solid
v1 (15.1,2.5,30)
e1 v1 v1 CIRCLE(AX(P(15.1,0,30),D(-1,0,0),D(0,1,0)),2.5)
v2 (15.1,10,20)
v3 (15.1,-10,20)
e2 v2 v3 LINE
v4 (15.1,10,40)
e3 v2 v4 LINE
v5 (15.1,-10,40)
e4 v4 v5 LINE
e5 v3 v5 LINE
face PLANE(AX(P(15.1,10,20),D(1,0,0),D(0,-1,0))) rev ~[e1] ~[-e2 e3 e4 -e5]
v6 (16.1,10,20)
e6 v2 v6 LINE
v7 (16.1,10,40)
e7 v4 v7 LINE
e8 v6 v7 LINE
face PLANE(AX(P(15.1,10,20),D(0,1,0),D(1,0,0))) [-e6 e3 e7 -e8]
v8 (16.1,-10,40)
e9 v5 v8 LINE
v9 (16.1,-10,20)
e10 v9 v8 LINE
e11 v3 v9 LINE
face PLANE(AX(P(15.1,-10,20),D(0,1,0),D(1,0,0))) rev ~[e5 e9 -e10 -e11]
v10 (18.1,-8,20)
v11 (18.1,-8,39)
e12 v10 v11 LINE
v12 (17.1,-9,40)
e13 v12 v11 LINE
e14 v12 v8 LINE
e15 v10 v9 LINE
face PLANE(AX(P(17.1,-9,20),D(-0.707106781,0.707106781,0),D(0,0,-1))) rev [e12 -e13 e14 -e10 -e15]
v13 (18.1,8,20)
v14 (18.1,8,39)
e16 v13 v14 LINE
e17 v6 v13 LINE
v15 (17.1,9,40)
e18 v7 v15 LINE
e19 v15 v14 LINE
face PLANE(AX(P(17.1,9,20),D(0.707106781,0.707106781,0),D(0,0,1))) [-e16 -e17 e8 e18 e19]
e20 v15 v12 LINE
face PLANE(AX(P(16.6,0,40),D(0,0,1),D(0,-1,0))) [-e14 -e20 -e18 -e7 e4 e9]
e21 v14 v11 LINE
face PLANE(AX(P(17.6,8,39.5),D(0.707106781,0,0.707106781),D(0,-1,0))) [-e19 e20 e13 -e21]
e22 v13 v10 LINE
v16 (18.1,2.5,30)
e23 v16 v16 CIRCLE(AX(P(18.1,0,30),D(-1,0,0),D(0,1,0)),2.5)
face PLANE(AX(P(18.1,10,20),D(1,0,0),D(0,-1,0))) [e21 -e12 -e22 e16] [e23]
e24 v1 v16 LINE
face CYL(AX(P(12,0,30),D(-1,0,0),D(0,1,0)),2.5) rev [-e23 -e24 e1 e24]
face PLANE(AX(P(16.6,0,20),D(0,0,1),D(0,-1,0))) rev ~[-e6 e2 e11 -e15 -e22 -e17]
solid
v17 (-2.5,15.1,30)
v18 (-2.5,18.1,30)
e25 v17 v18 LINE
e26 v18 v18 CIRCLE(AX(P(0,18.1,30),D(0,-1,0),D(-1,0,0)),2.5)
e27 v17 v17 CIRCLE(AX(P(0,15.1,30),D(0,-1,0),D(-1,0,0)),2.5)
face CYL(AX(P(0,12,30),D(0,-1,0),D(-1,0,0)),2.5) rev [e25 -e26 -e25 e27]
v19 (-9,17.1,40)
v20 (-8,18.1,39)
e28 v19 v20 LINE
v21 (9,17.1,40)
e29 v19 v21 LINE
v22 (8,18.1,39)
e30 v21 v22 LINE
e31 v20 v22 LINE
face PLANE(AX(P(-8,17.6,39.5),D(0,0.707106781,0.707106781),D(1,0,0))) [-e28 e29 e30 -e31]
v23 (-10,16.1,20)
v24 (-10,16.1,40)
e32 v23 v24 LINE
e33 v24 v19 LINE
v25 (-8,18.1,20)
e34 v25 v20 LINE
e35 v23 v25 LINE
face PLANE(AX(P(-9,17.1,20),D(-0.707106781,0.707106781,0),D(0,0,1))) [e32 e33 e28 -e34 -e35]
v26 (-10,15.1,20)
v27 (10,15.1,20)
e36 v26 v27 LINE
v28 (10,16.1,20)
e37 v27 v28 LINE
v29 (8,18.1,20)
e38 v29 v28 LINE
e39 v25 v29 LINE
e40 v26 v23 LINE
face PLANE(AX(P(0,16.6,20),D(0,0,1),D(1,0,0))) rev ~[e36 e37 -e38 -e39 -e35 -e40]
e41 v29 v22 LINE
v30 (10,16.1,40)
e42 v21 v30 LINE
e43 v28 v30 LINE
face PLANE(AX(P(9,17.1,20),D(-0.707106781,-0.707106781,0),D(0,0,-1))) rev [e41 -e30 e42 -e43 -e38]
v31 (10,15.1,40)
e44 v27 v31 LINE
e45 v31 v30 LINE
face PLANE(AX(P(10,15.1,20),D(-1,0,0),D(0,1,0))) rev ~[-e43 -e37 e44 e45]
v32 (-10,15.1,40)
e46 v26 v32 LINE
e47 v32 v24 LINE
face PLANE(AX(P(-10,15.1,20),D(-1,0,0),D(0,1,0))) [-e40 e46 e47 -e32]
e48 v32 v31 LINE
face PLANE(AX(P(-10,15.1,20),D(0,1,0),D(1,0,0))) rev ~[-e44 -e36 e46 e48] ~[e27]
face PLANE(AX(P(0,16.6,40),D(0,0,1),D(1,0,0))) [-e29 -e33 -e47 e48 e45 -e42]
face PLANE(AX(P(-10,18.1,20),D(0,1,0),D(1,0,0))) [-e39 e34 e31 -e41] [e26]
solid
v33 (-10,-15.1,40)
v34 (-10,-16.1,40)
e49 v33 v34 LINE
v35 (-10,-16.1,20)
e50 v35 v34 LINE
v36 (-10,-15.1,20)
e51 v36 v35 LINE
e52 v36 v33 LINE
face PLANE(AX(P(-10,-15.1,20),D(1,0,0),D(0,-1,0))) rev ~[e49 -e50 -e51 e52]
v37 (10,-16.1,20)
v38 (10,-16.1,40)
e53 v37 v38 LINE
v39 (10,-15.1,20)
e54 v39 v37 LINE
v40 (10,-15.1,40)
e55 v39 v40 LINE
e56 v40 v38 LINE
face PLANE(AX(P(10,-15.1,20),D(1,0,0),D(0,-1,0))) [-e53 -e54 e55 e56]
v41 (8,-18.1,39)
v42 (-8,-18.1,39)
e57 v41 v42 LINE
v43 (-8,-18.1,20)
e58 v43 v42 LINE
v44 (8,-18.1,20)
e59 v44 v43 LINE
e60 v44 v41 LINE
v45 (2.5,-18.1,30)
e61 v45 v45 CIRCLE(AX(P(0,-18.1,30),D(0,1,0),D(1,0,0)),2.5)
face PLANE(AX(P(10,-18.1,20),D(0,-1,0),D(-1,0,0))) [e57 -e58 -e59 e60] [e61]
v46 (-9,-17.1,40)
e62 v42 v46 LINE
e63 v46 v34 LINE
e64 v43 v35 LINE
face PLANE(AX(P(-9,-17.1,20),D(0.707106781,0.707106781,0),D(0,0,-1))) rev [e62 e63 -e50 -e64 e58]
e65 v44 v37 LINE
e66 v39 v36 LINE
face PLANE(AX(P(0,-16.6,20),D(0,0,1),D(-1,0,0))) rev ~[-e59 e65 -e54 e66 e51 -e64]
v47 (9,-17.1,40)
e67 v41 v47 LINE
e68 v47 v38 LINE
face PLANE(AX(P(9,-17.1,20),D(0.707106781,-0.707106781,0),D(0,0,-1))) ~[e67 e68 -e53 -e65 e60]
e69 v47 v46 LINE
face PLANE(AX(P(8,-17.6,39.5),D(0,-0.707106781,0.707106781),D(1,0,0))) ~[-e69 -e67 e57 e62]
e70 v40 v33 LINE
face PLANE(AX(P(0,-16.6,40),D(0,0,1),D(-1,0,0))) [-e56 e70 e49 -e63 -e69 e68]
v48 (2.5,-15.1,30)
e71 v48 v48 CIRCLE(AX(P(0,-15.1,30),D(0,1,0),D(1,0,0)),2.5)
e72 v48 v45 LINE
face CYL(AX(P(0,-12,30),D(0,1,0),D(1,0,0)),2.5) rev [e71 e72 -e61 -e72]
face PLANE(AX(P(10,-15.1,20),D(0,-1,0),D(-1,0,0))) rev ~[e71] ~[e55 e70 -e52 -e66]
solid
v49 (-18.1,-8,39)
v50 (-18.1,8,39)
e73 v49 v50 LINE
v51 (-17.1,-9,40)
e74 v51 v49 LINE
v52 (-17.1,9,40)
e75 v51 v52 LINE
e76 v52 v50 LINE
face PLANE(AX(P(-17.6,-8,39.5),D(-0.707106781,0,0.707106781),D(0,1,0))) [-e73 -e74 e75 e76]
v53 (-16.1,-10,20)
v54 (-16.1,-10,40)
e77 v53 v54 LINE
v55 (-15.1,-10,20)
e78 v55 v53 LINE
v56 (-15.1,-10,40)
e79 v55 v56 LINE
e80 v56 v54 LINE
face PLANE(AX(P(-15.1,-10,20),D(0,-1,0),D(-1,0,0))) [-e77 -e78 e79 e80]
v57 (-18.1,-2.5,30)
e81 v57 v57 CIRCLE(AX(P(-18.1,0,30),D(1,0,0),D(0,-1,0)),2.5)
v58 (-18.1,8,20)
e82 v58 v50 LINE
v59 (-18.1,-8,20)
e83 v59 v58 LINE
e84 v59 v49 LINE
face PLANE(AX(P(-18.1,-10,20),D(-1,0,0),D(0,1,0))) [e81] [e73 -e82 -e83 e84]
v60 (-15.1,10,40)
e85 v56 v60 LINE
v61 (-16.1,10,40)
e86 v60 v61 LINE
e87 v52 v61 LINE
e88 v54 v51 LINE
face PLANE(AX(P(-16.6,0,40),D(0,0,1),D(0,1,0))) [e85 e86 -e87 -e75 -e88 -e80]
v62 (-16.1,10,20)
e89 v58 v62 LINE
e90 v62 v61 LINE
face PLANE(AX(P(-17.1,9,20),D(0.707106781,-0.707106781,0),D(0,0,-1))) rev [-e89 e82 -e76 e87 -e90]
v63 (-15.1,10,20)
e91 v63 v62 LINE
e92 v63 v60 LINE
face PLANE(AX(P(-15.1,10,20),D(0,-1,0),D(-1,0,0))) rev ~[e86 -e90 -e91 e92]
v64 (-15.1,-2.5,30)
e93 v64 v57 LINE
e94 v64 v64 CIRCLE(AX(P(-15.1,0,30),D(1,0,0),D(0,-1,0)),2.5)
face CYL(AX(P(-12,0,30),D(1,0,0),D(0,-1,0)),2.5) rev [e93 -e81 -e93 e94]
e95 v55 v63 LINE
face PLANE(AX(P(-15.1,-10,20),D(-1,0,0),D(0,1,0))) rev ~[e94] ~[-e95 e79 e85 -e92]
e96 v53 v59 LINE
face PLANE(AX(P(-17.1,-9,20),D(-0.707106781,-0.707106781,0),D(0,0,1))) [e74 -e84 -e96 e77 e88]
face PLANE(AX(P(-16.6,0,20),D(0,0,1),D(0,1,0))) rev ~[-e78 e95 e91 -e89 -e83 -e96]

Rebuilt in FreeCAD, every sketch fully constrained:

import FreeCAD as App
import Part
import Sketcher
Q = App.Units.Quantity


def edges_at(feature, points):
    """Names of the edges that pass closest to the given points."""
    edges = feature.Shape.Edges
    near = lambda p: min(range(len(edges)), key=lambda i: edges[i].distToShape(Part.Vertex(*p))[0])
    return sorted({f"Edge{near(p) + 1}" for p in points})


def add_polygon(sketch, points):
    """Adds a closed chain of lines whose ends are joined by coincident constraints."""
    first, n = sketch.GeometryCount, len(points)
    for a, b in zip(points, points[1:] + points[:1]):
        sketch.addGeometry(Part.LineSegment(App.Vector(*a, 0), App.Vector(*b, 0)), False)
    for i in range(n):
        sketch.addConstraint(Sketcher.Constraint("Coincident", first + i, 2, first + (i + 1) % n, 1))

doc = App.newDocument("Part")
body = doc.addObject("PartDesign::Body", "Body")

# Sketch on YZ plane
sketch1 = doc.addObject("Sketcher::SketchObject", "Sketch")
body.addObject(sketch1)
sketch1.AttachmentSupport = (doc.YZ_Plane, [""])
sketch1.MapMode = "FlatFace"
sketch1.AttachmentOffset = App.Placement(App.Vector(0, 0, 12), App.Rotation())
sketch1.addGeometry(Part.Circle(App.Vector(0, 30, 0), App.Vector(0, 0, 1), 2.5), False)
sketch1.addConstraint([
    Sketcher.Constraint("PointOnObject", 0, 3, -2),
    Sketcher.Constraint("Diameter", 0, Q("5 mm")),
    Sketcher.Constraint("DistanceY", -1, 1, 0, 3, Q("30 mm")),
])
pad1 = doc.addObject("PartDesign::Pad", "Pad")
body.addObject(pad1)
pad1.Profile = sketch1
pad1.Length = 10
body2 = doc.addObject("PartDesign::Body", "Body001")

# Sketch on XY plane
sketch2 = doc.addObject("Sketcher::SketchObject", "Sketch001")
body2.addObject(sketch2)
sketch2.AttachmentSupport = (doc.getObject("XY_Plane001"), [""])
sketch2.MapMode = "FlatFace"
sketch2.addGeometry(Part.Circle(App.Vector(0, 0, 0), App.Vector(0, 0, 1), 2.5), False)
sketch2.addConstraint([
    Sketcher.Constraint("Coincident", 0, 3, -1, 1),
    Sketcher.Constraint("Diameter", 0, Q("5 mm")),
])
pad2 = doc.addObject("PartDesign::Pad", "Pad001")
body2.addObject(pad2)
pad2.Profile = sketch2
pad2.Length = 10
body3 = doc.addObject("PartDesign::Body", "Body002")
doc.recompute()

body2.Placement = App.Placement(App.Vector(0, 0, 0), App.Rotation(App.Vector(1, 0, 0), 90))
boolean = doc.addObject("PartDesign::Boolean", "Boolean")
body3.addObject(boolean)
boolean.Type = "Fuse"
boolean.addObjects([body2])
body4 = doc.addObject("PartDesign::Body", "Body003")
doc.recompute()

body3.Placement = App.Placement(App.Vector(0, 12, 30), App.Rotation(App.Vector(0, 0, 1), 180))
boolean2 = doc.addObject("PartDesign::Boolean", "Boolean001")
body4.addObject(boolean2)
boolean2.Type = "Fuse"
boolean2.addObjects([body3])
body5 = doc.addObject("PartDesign::Body", "Body004")

# Sketch on XY plane
sketch3 = doc.addObject("Sketcher::SketchObject", "Sketch002")
body5.addObject(sketch3)
sketch3.AttachmentSupport = (doc.getObject("XY_Plane004"), [""])
sketch3.MapMode = "FlatFace"
sketch3.addGeometry(Part.Circle(App.Vector(0, 0, 0), App.Vector(0, 0, 1), 2.5), False)
sketch3.addConstraint([
    Sketcher.Constraint("Coincident", 0, 3, -1, 1),
    Sketcher.Constraint("Diameter", 0, Q("5 mm")),
])
pad3 = doc.addObject("PartDesign::Pad", "Pad002")
body5.addObject(pad3)
pad3.Profile = sketch3
pad3.Length = 10
body6 = doc.addObject("PartDesign::Body", "Body005")
doc.recompute()

body5.Placement = App.Placement(App.Vector(0, 0, 0), App.Rotation(App.Vector(1, 0, 0), 90))
boolean3 = doc.addObject("PartDesign::Boolean", "Boolean002")
body6.addObject(boolean3)
boolean3.Type = "Fuse"
boolean3.addObjects([body5])
body7 = doc.addObject("PartDesign::Body", "Body006")
doc.recompute()

body6.Placement = App.Placement(App.Vector(0, 0, 0), App.Rotation(App.Vector(0, 0, 1), 0))
boolean4 = doc.addObject("PartDesign::Boolean", "Boolean003")
body7.addObject(boolean4)
boolean4.Type = "Fuse"
boolean4.addObjects([body6])
body8 = doc.addObject("PartDesign::Body", "Body007")
doc.recompute()

body7.Placement = App.Placement(App.Vector(-12, 0, 30), App.Rotation(App.Vector(0, 0, 1), 270))
boolean5 = doc.addObject("PartDesign::Boolean", "Boolean004")
body8.addObject(boolean5)
boolean5.Type = "Fuse"
boolean5.addObjects([body7])
body9 = doc.addObject("PartDesign::Body", "Body008")
body9.AllowCompound = True

# Sketch on XZ plane
sketch4 = doc.addObject("Sketcher::SketchObject", "Sketch003")
body9.addObject(sketch4)
sketch4.AttachmentSupport = (doc.getObject("XZ_Plane008"), [""])
sketch4.MapMode = "FlatFace"
sketch4.AttachmentOffset = App.Placement(App.Vector(0, 0, 12), App.Rotation())
sketch4.addGeometry(Part.Circle(App.Vector(0, 30, 0), App.Vector(0, 0, 1), 2.5), False)
sketch4.addConstraint([
    Sketcher.Constraint("PointOnObject", 0, 3, -2),
    Sketcher.Constraint("Diameter", 0, Q("5 mm")),
    Sketcher.Constraint("DistanceY", -1, 1, 0, 3, Q("30 mm")),
])
pad4 = doc.addObject("PartDesign::Pad", "Pad003")
body9.addObject(pad4)
pad4.Profile = sketch4
pad4.Length = 10
doc.recompute()

boolean6 = doc.addObject("PartDesign::Boolean", "Boolean005")
body9.addObject(boolean6)
boolean6.Type = "Fuse"
boolean6.addObjects([body])
doc.recompute()

boolean7 = doc.addObject("PartDesign::Boolean", "Boolean006")
body9.addObject(boolean7)
boolean7.Type = "Fuse"
boolean7.addObjects([body4])
doc.recompute()

boolean8 = doc.addObject("PartDesign::Boolean", "Boolean007")
body9.addObject(boolean8)
boolean8.Type = "Fuse"
boolean8.addObjects([body8])
body10 = doc.addObject("PartDesign::Body", "Body009")

# Sketch on XY plane
sketch5 = doc.addObject("Sketcher::SketchObject", "Sketch004")
body10.addObject(sketch5)
sketch5.AttachmentSupport = (doc.getObject("XY_Plane009"), [""])
sketch5.MapMode = "FlatFace"
sketch5.AttachmentOffset = App.Placement(App.Vector(0, 0, 20), App.Rotation())
add_polygon(sketch5, [(-18.1, -10), (-15.1, -10), (-15.1, 10), (-18.1, 10)])  # lines 0-3
sketch5.addConstraint([
    Sketcher.Constraint("Horizontal", 0),
    Sketcher.Constraint("Vertical", 1),
    Sketcher.Constraint("Horizontal", 2),
    Sketcher.Constraint("Vertical", 3),
    Sketcher.Constraint("DistanceX", 0, 1, 0, 2, Q("3 mm")),
    Sketcher.Constraint("DistanceY", 1, 1, 1, 2, Q("20 mm")),
    Sketcher.Constraint("DistanceY", 0, 2, -1, 1, Q("10 mm")),
    Sketcher.Constraint("DistanceX", 0, 2, -1, 1, Q("15.1 mm")),
])
pad5 = doc.addObject("PartDesign::Pad", "Pad004")
body10.addObject(pad5)
pad5.Profile = sketch5
pad5.Length = 20
body11 = doc.addObject("PartDesign::Body", "Body010")

# Sketch on XY plane
sketch6 = doc.addObject("Sketcher::SketchObject", "Sketch005")
body11.addObject(sketch6)
sketch6.AttachmentSupport = (doc.getObject("XY_Plane010"), [""])
sketch6.MapMode = "FlatFace"
sketch6.AttachmentOffset = App.Placement(App.Vector(0, 0, 20), App.Rotation())
add_polygon(sketch6, [(10, -18.1), (10, -15.1), (-10, -15.1), (-10, -18.1)])  # lines 0-3
sketch6.addConstraint([
    Sketcher.Constraint("Vertical", 0),
    Sketcher.Constraint("Horizontal", 1),
    Sketcher.Constraint("Vertical", 2),
    Sketcher.Constraint("Horizontal", 3),
    Sketcher.Constraint("DistanceX", 1, 2, 1, 1, Q("20 mm")),
    Sketcher.Constraint("DistanceY", 0, 1, 0, 2, Q("3 mm")),
    Sketcher.Constraint("DistanceX", -1, 1, 0, 2, Q("10 mm")),
    Sketcher.Constraint("DistanceY", 0, 2, -1, 1, Q("15.1 mm")),
])
pad6 = doc.addObject("PartDesign::Pad", "Pad005")
body11.addObject(pad6)
pad6.Profile = sketch6
pad6.Length = 20
body12 = doc.addObject("PartDesign::Body", "Body011")

# Sketch on XY plane
sketch7 = doc.addObject("Sketcher::SketchObject", "Sketch006")
body12.addObject(sketch7)
sketch7.AttachmentSupport = (doc.getObject("XY_Plane011"), [""])
sketch7.MapMode = "FlatFace"
sketch7.AttachmentOffset = App.Placement(App.Vector(0, 0, 20), App.Rotation())
add_polygon(sketch7, [(18.1, 10), (15.1, 10), (15.1, -10), (18.1, -10)])  # lines 0-3
sketch7.addConstraint([
    Sketcher.Constraint("Horizontal", 0),
    Sketcher.Constraint("Vertical", 1),
    Sketcher.Constraint("Horizontal", 2),
    Sketcher.Constraint("Vertical", 3),
    Sketcher.Constraint("DistanceX", 0, 2, 0, 1, Q("3 mm")),
    Sketcher.Constraint("DistanceY", 1, 2, 1, 1, Q("20 mm")),
    Sketcher.Constraint("DistanceY", -1, 1, 0, 2, Q("10 mm")),
    Sketcher.Constraint("DistanceX", -1, 1, 0, 2, Q("15.1 mm")),
])
pad7 = doc.addObject("PartDesign::Pad", "Pad006")
body12.addObject(pad7)
pad7.Profile = sketch7
pad7.Length = 20
body13 = doc.addObject("PartDesign::Body", "Body012")
body13.AllowCompound = True

# Sketch on XY plane
sketch8 = doc.addObject("Sketcher::SketchObject", "Sketch007")
body13.addObject(sketch8)
sketch8.AttachmentSupport = (doc.getObject("XY_Plane012"), [""])
sketch8.MapMode = "FlatFace"
sketch8.AttachmentOffset = App.Placement(App.Vector(0, 0, 20), App.Rotation())
add_polygon(sketch8, [(-10, 18.1), (-10, 15.1), (10, 15.1), (10, 18.1)])  # lines 0-3
sketch8.addConstraint([
    Sketcher.Constraint("Vertical", 0),
    Sketcher.Constraint("Horizontal", 1),
    Sketcher.Constraint("Vertical", 2),
    Sketcher.Constraint("Horizontal", 3),
    Sketcher.Constraint("DistanceX", 1, 1, 1, 2, Q("20 mm")),
    Sketcher.Constraint("DistanceY", 0, 2, 0, 1, Q("3 mm")),
    Sketcher.Constraint("DistanceX", 0, 2, -1, 1, Q("10 mm")),
    Sketcher.Constraint("DistanceY", -1, 1, 0, 2, Q("15.1 mm")),
])
pad8 = doc.addObject("PartDesign::Pad", "Pad007")
body13.addObject(pad8)
pad8.Profile = sketch8
pad8.Length = 20
doc.recompute()

boolean9 = doc.addObject("PartDesign::Boolean", "Boolean008")
body13.addObject(boolean9)
boolean9.Type = "Fuse"
boolean9.addObjects([body10])
doc.recompute()

boolean10 = doc.addObject("PartDesign::Boolean", "Boolean009")
body13.addObject(boolean10)
boolean10.Type = "Fuse"
boolean10.addObjects([body11])
doc.recompute()

boolean11 = doc.addObject("PartDesign::Boolean", "Boolean010")
body13.addObject(boolean11)
boolean11.Type = "Fuse"
boolean11.addObjects([body12])
doc.recompute()

boolean12 = doc.addObject("PartDesign::Boolean", "Boolean011")
body13.addObject(boolean12)
boolean12.Type = "Cut"
boolean12.addObjects([body9])
doc.recompute()

chamfer = doc.addObject("PartDesign::Chamfer", "Chamfer")
body13.addObject(chamfer)
chamfer.Base = (boolean12, edges_at(boolean12, [
    (-10, 18.1, 30),
    (10, 18.1, 30),
    (-18.1, -10, 30),
    (-18.1, 10, 30),
    (-10, -18.1, 30),
]))
chamfer.Size = 2
doc.recompute()

chamfer2 = doc.addObject("PartDesign::Chamfer", "Chamfer001")
body13.addObject(chamfer2)
chamfer2.Base = (chamfer, edges_at(chamfer, [(10, -18.1, 30), (18.1, 10, 30), (18.1, -10, 30)]))
chamfer2.Size = 2
doc.recompute()

chamfer3 = doc.addObject("PartDesign::Chamfer", "Chamfer002")
body13.addObject(chamfer3)
chamfer3.Base = (chamfer2, edges_at(chamfer2, [
    (0, -18.1, 40),
    (18.1, 0, 40),
    (0, 18.1, 40),
    (-18.1, 0, 40),
]))
chamfer3.Size = 1

doc.recompute()
